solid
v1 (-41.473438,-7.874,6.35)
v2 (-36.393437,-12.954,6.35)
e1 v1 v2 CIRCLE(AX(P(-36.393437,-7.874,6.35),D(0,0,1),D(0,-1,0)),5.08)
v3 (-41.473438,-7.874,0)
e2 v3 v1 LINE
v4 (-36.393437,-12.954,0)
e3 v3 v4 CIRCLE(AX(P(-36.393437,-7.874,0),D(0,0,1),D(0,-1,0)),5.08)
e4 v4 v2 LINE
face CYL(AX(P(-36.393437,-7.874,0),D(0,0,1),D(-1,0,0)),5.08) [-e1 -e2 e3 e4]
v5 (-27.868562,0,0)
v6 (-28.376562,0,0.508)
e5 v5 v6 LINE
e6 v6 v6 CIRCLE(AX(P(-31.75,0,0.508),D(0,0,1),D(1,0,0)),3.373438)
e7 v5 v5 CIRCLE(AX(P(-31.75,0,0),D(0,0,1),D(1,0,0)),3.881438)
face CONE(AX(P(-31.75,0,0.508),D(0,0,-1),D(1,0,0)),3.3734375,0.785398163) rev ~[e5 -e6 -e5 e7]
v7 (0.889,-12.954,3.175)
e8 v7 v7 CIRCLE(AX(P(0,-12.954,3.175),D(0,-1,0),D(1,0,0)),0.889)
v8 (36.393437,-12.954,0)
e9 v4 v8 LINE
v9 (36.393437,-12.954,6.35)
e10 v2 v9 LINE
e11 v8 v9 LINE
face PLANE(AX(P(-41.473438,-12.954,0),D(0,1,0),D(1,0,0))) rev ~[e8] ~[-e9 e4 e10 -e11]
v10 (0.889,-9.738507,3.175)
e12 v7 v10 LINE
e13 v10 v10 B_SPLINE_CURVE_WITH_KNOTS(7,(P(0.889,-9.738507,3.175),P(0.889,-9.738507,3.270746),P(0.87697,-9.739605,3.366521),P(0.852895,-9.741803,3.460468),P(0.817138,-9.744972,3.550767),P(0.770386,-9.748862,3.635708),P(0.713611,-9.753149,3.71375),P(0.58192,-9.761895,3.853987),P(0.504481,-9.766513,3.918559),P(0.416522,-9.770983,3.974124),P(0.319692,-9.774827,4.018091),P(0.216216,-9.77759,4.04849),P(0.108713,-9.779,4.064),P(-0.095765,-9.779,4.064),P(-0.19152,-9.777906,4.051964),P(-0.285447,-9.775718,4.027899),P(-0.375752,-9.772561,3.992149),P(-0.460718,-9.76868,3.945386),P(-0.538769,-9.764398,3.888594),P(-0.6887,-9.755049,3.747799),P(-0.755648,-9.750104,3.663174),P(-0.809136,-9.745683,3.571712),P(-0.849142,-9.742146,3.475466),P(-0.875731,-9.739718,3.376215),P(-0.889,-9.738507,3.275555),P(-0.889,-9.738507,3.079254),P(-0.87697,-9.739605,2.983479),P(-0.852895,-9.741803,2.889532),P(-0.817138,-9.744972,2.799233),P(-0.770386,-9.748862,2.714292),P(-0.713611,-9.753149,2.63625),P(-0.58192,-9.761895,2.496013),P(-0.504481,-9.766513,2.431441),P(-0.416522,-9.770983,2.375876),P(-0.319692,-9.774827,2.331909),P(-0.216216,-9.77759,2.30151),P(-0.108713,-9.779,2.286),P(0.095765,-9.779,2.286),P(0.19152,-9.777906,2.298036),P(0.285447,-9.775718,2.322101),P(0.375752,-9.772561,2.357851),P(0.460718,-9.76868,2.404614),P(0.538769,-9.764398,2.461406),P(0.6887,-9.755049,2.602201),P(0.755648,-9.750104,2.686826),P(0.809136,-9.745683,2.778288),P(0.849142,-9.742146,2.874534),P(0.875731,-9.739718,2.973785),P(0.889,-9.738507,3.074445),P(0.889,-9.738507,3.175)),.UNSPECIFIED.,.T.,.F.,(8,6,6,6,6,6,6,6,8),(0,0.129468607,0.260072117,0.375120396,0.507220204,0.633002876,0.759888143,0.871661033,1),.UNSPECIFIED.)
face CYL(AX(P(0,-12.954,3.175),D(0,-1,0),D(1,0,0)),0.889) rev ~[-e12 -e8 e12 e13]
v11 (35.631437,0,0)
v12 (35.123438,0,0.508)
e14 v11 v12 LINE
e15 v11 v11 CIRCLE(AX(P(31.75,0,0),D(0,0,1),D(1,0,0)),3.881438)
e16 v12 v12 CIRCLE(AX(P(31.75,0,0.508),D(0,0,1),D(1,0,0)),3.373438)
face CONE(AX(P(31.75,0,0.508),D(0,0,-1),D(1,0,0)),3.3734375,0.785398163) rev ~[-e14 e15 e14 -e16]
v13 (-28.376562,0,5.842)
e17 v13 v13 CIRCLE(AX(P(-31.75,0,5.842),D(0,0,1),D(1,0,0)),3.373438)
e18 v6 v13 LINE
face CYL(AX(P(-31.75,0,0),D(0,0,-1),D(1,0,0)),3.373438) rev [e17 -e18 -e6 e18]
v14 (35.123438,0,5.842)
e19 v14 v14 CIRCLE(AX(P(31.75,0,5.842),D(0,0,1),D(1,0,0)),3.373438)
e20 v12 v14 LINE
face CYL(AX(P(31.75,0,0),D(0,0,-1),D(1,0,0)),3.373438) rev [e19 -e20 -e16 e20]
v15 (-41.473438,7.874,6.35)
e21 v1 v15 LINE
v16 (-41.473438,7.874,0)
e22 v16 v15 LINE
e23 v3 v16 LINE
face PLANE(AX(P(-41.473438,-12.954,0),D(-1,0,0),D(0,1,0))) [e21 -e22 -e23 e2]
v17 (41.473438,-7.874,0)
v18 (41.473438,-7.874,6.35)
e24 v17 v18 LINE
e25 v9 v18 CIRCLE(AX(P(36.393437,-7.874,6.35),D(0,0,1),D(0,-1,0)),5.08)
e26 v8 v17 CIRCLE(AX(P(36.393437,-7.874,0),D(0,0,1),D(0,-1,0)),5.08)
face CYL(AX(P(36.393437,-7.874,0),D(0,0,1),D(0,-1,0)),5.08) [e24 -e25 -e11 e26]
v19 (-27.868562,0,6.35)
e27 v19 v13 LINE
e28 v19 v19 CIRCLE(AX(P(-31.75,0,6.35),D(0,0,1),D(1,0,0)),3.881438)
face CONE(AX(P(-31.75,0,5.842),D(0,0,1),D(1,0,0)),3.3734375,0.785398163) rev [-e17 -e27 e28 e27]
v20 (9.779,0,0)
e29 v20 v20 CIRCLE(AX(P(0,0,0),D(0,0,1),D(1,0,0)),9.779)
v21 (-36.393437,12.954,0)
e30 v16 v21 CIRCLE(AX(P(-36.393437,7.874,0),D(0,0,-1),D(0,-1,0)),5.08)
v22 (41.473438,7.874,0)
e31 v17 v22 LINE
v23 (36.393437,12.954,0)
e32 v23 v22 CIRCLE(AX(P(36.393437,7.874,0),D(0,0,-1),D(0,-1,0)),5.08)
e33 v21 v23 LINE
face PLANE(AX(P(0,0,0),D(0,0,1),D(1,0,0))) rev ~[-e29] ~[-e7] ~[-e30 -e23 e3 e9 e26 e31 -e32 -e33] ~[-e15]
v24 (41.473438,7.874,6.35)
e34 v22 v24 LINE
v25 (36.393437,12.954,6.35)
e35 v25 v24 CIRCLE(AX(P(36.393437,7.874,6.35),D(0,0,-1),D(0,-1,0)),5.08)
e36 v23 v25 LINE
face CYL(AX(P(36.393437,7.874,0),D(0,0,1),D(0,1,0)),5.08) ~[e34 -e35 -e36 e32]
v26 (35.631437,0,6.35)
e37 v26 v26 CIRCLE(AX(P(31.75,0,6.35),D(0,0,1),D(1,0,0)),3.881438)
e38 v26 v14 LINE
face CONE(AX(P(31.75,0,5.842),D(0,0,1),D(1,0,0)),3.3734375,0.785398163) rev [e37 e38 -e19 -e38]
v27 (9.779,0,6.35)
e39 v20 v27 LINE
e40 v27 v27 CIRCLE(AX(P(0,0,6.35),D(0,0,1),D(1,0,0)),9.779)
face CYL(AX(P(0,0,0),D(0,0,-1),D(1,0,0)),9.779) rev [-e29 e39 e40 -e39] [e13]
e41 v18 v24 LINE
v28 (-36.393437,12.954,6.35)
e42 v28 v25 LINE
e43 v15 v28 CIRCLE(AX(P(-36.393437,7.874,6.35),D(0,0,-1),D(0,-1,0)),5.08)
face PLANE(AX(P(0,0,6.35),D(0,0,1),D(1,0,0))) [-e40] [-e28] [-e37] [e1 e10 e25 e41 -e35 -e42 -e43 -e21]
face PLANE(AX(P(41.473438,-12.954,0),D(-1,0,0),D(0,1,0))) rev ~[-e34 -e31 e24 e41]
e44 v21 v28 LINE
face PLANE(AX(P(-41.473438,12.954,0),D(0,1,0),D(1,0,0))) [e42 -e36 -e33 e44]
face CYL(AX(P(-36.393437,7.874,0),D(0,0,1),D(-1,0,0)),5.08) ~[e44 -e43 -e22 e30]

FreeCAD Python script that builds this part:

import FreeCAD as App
import Part
import Sketcher
Q = App.Units.Quantity


def edges_at(feature, points):
    """Names of the edges that pass closest to the given points."""
    edges = feature.Shape.Edges
    near = lambda p: min(range(len(edges)), key=lambda i: edges[i].distToShape(Part.Vertex(*p))[0])
    return sorted({f"Edge{near(p) + 1}" for p in points})


def add_polygon(sketch, points):
    """Adds a closed chain of lines whose ends are joined by coincident constraints."""
    first, n = sketch.GeometryCount, len(points)
    for a, b in zip(points, points[1:] + points[:1]):
        sketch.addGeometry(Part.LineSegment(App.Vector(*a, 0), App.Vector(*b, 0)), False)
    for i in range(n):
        sketch.addConstraint(Sketcher.Constraint("Coincident", first + i, 2, first + (i + 1) % n, 1))

doc = App.newDocument("Part")
params = doc.addObject("Spreadsheet::Sheet", "Params")
for row, (alias, value) in enumerate([
    ("sketch1_diameter", "0.77 in"),
    ("sketch1_diameter2", "0.265625 in"),
    ("sketch1_height", "1.02 in"),
    ("sketch1_width", "3.265625 in"),
    ("pad1_length", "0.25 in"),
    ("sketch2_diameter", "0.07 in"),
    ("pocket1_length", "3.216493 mm"),
    ("fillet_radius", "0.2 in"),
    ("chamfer_size", "0.02 in"),
], start=1):
    params.set(f"A{row}", alias)
    params.set(f"B{row}", "=" + value)
    params.setAlias(f"B{row}", alias)

body = doc.addObject("PartDesign::Body", "Body")

sketch1 = body.newObject("Sketcher::SketchObject", "Sketch")
sketch1.AttachmentSupport = (doc.getObject("XY_Plane"), [""])
sketch1.MapMode = "FlatFace"
add_polygon(sketch1, [(-41.5, 13), (-41.5, -13), (41.5, -13), (41.5, 13)])
sketch1.addGeometry(Part.Circle(App.Vector(-31.8, 0, 0), App.Vector(0, 0, 1), 3.4), False)
sketch1.addGeometry(Part.Circle(App.Vector(0, 0, 0), App.Vector(0, 0, 1), 9.8), False)
sketch1.addGeometry(Part.Circle(App.Vector(31.8, 0, 0), App.Vector(0, 0, 1), 3.4), False)
sketch1.addConstraint(Sketcher.Constraint("Vertical", 0))
sketch1.addConstraint(Sketcher.Constraint("Horizontal", 1))
sketch1.addConstraint(Sketcher.Constraint("Vertical", 2))
sketch1.addConstraint(Sketcher.Constraint("Horizontal", 3))
sketch1.addConstraint(Sketcher.Constraint("Coincident", 5, 3, -1, 1))
sketch1.addConstraint(Sketcher.Constraint("Equal", 4, 6))
sketch1.addConstraint(Sketcher.Constraint("Symmetric", 4, 3, 6, 3, -1, 1))
sketch1.addConstraint(Sketcher.Constraint("Symmetric", 0, 2, 2, 2, -1, 1))
sketch1.addConstraint(Sketcher.Constraint("PointOnObject", 4, 3, -1))
sketch1.addConstraint(Sketcher.Constraint("Diameter", 5, Q("0.77 in")))
sketch1.addConstraint(Sketcher.Constraint("Diameter", 4, Q("0.265625 in")))
sketch1.addConstraint(Sketcher.Constraint("DistanceY", 0, 2, 0, 1, Q("1.02 in")))
sketch1.addConstraint(Sketcher.Constraint("DistanceX", 4, 3, 6, 3, Q("2.5 in")))
sketch1.addConstraint(Sketcher.Constraint("DistanceX", 1, 1, 1, 2, Q("3.265625 in")))
sketch1.setExpression("Constraints[13]", "Params.sketch1_diameter")
sketch1.setExpression("Constraints[14]", "Params.sketch1_diameter2")
sketch1.setExpression("Constraints[15]", "Params.sketch1_height")
sketch1.setExpression("Constraints[17]", "Params.sketch1_width")
pad1 = body.newObject("PartDesign::Pad", "Pad")
pad1.Profile = sketch1
pad1.setExpression("Length", "Params.pad1_length")

sketch2 = body.newObject("Sketcher::SketchObject", "Sketch001")
sketch2.AttachmentSupport = (doc.getObject("XZ_Plane"), [""])
sketch2.MapMode = "FlatFace"
sketch2.AttachmentOffset = App.Placement(App.Vector(0, 0, 0.51 * 25.4), App.Rotation())
sketch2.addGeometry(Part.Circle(App.Vector(0, 3.2, 0), App.Vector(0, 0, 1), 0.9), False)
sketch2.addConstraint(Sketcher.Constraint("PointOnObject", 0, 3, -2))
sketch2.addConstraint(Sketcher.Constraint("Diameter", 0, Q("0.07 in")))
sketch2.addConstraint(Sketcher.Constraint("DistanceY", -1, 1, 0, 3, Q("0.125 in")))
sketch2.setExpression("Constraints[1]", "Params.sketch2_diameter")
pocket1 = body.newObject("PartDesign::Pocket", "Pocket")
pocket1.Profile = sketch2
pocket1.setExpression("Length", "Params.pocket1_length")
doc.recompute()

fillet = body.newObject("PartDesign::Fillet", "Fillet")
fillet.Base = (pocket1, edges_at(pocket1, [
    (41.473, -12.954, 3.175),
    (41.473, 12.954, 3.175),
    (-41.473, -12.954, 3.175),
    (-41.473, 12.954, 3.175),
]))
fillet.setExpression("Radius", "Params.fillet_radius")
doc.recompute()

chamfer = body.newObject("PartDesign::Chamfer", "Chamfer")
chamfer.Base = (fillet, edges_at(fillet, [
    (-35.123, 0, 6.35),
    (28.377, 0, 6.35),
    (-35.123, 0, 0),
    (28.377, 0, 0),
]))
chamfer.setExpression("Size", "Params.chamfer_size")

doc.recompute()
